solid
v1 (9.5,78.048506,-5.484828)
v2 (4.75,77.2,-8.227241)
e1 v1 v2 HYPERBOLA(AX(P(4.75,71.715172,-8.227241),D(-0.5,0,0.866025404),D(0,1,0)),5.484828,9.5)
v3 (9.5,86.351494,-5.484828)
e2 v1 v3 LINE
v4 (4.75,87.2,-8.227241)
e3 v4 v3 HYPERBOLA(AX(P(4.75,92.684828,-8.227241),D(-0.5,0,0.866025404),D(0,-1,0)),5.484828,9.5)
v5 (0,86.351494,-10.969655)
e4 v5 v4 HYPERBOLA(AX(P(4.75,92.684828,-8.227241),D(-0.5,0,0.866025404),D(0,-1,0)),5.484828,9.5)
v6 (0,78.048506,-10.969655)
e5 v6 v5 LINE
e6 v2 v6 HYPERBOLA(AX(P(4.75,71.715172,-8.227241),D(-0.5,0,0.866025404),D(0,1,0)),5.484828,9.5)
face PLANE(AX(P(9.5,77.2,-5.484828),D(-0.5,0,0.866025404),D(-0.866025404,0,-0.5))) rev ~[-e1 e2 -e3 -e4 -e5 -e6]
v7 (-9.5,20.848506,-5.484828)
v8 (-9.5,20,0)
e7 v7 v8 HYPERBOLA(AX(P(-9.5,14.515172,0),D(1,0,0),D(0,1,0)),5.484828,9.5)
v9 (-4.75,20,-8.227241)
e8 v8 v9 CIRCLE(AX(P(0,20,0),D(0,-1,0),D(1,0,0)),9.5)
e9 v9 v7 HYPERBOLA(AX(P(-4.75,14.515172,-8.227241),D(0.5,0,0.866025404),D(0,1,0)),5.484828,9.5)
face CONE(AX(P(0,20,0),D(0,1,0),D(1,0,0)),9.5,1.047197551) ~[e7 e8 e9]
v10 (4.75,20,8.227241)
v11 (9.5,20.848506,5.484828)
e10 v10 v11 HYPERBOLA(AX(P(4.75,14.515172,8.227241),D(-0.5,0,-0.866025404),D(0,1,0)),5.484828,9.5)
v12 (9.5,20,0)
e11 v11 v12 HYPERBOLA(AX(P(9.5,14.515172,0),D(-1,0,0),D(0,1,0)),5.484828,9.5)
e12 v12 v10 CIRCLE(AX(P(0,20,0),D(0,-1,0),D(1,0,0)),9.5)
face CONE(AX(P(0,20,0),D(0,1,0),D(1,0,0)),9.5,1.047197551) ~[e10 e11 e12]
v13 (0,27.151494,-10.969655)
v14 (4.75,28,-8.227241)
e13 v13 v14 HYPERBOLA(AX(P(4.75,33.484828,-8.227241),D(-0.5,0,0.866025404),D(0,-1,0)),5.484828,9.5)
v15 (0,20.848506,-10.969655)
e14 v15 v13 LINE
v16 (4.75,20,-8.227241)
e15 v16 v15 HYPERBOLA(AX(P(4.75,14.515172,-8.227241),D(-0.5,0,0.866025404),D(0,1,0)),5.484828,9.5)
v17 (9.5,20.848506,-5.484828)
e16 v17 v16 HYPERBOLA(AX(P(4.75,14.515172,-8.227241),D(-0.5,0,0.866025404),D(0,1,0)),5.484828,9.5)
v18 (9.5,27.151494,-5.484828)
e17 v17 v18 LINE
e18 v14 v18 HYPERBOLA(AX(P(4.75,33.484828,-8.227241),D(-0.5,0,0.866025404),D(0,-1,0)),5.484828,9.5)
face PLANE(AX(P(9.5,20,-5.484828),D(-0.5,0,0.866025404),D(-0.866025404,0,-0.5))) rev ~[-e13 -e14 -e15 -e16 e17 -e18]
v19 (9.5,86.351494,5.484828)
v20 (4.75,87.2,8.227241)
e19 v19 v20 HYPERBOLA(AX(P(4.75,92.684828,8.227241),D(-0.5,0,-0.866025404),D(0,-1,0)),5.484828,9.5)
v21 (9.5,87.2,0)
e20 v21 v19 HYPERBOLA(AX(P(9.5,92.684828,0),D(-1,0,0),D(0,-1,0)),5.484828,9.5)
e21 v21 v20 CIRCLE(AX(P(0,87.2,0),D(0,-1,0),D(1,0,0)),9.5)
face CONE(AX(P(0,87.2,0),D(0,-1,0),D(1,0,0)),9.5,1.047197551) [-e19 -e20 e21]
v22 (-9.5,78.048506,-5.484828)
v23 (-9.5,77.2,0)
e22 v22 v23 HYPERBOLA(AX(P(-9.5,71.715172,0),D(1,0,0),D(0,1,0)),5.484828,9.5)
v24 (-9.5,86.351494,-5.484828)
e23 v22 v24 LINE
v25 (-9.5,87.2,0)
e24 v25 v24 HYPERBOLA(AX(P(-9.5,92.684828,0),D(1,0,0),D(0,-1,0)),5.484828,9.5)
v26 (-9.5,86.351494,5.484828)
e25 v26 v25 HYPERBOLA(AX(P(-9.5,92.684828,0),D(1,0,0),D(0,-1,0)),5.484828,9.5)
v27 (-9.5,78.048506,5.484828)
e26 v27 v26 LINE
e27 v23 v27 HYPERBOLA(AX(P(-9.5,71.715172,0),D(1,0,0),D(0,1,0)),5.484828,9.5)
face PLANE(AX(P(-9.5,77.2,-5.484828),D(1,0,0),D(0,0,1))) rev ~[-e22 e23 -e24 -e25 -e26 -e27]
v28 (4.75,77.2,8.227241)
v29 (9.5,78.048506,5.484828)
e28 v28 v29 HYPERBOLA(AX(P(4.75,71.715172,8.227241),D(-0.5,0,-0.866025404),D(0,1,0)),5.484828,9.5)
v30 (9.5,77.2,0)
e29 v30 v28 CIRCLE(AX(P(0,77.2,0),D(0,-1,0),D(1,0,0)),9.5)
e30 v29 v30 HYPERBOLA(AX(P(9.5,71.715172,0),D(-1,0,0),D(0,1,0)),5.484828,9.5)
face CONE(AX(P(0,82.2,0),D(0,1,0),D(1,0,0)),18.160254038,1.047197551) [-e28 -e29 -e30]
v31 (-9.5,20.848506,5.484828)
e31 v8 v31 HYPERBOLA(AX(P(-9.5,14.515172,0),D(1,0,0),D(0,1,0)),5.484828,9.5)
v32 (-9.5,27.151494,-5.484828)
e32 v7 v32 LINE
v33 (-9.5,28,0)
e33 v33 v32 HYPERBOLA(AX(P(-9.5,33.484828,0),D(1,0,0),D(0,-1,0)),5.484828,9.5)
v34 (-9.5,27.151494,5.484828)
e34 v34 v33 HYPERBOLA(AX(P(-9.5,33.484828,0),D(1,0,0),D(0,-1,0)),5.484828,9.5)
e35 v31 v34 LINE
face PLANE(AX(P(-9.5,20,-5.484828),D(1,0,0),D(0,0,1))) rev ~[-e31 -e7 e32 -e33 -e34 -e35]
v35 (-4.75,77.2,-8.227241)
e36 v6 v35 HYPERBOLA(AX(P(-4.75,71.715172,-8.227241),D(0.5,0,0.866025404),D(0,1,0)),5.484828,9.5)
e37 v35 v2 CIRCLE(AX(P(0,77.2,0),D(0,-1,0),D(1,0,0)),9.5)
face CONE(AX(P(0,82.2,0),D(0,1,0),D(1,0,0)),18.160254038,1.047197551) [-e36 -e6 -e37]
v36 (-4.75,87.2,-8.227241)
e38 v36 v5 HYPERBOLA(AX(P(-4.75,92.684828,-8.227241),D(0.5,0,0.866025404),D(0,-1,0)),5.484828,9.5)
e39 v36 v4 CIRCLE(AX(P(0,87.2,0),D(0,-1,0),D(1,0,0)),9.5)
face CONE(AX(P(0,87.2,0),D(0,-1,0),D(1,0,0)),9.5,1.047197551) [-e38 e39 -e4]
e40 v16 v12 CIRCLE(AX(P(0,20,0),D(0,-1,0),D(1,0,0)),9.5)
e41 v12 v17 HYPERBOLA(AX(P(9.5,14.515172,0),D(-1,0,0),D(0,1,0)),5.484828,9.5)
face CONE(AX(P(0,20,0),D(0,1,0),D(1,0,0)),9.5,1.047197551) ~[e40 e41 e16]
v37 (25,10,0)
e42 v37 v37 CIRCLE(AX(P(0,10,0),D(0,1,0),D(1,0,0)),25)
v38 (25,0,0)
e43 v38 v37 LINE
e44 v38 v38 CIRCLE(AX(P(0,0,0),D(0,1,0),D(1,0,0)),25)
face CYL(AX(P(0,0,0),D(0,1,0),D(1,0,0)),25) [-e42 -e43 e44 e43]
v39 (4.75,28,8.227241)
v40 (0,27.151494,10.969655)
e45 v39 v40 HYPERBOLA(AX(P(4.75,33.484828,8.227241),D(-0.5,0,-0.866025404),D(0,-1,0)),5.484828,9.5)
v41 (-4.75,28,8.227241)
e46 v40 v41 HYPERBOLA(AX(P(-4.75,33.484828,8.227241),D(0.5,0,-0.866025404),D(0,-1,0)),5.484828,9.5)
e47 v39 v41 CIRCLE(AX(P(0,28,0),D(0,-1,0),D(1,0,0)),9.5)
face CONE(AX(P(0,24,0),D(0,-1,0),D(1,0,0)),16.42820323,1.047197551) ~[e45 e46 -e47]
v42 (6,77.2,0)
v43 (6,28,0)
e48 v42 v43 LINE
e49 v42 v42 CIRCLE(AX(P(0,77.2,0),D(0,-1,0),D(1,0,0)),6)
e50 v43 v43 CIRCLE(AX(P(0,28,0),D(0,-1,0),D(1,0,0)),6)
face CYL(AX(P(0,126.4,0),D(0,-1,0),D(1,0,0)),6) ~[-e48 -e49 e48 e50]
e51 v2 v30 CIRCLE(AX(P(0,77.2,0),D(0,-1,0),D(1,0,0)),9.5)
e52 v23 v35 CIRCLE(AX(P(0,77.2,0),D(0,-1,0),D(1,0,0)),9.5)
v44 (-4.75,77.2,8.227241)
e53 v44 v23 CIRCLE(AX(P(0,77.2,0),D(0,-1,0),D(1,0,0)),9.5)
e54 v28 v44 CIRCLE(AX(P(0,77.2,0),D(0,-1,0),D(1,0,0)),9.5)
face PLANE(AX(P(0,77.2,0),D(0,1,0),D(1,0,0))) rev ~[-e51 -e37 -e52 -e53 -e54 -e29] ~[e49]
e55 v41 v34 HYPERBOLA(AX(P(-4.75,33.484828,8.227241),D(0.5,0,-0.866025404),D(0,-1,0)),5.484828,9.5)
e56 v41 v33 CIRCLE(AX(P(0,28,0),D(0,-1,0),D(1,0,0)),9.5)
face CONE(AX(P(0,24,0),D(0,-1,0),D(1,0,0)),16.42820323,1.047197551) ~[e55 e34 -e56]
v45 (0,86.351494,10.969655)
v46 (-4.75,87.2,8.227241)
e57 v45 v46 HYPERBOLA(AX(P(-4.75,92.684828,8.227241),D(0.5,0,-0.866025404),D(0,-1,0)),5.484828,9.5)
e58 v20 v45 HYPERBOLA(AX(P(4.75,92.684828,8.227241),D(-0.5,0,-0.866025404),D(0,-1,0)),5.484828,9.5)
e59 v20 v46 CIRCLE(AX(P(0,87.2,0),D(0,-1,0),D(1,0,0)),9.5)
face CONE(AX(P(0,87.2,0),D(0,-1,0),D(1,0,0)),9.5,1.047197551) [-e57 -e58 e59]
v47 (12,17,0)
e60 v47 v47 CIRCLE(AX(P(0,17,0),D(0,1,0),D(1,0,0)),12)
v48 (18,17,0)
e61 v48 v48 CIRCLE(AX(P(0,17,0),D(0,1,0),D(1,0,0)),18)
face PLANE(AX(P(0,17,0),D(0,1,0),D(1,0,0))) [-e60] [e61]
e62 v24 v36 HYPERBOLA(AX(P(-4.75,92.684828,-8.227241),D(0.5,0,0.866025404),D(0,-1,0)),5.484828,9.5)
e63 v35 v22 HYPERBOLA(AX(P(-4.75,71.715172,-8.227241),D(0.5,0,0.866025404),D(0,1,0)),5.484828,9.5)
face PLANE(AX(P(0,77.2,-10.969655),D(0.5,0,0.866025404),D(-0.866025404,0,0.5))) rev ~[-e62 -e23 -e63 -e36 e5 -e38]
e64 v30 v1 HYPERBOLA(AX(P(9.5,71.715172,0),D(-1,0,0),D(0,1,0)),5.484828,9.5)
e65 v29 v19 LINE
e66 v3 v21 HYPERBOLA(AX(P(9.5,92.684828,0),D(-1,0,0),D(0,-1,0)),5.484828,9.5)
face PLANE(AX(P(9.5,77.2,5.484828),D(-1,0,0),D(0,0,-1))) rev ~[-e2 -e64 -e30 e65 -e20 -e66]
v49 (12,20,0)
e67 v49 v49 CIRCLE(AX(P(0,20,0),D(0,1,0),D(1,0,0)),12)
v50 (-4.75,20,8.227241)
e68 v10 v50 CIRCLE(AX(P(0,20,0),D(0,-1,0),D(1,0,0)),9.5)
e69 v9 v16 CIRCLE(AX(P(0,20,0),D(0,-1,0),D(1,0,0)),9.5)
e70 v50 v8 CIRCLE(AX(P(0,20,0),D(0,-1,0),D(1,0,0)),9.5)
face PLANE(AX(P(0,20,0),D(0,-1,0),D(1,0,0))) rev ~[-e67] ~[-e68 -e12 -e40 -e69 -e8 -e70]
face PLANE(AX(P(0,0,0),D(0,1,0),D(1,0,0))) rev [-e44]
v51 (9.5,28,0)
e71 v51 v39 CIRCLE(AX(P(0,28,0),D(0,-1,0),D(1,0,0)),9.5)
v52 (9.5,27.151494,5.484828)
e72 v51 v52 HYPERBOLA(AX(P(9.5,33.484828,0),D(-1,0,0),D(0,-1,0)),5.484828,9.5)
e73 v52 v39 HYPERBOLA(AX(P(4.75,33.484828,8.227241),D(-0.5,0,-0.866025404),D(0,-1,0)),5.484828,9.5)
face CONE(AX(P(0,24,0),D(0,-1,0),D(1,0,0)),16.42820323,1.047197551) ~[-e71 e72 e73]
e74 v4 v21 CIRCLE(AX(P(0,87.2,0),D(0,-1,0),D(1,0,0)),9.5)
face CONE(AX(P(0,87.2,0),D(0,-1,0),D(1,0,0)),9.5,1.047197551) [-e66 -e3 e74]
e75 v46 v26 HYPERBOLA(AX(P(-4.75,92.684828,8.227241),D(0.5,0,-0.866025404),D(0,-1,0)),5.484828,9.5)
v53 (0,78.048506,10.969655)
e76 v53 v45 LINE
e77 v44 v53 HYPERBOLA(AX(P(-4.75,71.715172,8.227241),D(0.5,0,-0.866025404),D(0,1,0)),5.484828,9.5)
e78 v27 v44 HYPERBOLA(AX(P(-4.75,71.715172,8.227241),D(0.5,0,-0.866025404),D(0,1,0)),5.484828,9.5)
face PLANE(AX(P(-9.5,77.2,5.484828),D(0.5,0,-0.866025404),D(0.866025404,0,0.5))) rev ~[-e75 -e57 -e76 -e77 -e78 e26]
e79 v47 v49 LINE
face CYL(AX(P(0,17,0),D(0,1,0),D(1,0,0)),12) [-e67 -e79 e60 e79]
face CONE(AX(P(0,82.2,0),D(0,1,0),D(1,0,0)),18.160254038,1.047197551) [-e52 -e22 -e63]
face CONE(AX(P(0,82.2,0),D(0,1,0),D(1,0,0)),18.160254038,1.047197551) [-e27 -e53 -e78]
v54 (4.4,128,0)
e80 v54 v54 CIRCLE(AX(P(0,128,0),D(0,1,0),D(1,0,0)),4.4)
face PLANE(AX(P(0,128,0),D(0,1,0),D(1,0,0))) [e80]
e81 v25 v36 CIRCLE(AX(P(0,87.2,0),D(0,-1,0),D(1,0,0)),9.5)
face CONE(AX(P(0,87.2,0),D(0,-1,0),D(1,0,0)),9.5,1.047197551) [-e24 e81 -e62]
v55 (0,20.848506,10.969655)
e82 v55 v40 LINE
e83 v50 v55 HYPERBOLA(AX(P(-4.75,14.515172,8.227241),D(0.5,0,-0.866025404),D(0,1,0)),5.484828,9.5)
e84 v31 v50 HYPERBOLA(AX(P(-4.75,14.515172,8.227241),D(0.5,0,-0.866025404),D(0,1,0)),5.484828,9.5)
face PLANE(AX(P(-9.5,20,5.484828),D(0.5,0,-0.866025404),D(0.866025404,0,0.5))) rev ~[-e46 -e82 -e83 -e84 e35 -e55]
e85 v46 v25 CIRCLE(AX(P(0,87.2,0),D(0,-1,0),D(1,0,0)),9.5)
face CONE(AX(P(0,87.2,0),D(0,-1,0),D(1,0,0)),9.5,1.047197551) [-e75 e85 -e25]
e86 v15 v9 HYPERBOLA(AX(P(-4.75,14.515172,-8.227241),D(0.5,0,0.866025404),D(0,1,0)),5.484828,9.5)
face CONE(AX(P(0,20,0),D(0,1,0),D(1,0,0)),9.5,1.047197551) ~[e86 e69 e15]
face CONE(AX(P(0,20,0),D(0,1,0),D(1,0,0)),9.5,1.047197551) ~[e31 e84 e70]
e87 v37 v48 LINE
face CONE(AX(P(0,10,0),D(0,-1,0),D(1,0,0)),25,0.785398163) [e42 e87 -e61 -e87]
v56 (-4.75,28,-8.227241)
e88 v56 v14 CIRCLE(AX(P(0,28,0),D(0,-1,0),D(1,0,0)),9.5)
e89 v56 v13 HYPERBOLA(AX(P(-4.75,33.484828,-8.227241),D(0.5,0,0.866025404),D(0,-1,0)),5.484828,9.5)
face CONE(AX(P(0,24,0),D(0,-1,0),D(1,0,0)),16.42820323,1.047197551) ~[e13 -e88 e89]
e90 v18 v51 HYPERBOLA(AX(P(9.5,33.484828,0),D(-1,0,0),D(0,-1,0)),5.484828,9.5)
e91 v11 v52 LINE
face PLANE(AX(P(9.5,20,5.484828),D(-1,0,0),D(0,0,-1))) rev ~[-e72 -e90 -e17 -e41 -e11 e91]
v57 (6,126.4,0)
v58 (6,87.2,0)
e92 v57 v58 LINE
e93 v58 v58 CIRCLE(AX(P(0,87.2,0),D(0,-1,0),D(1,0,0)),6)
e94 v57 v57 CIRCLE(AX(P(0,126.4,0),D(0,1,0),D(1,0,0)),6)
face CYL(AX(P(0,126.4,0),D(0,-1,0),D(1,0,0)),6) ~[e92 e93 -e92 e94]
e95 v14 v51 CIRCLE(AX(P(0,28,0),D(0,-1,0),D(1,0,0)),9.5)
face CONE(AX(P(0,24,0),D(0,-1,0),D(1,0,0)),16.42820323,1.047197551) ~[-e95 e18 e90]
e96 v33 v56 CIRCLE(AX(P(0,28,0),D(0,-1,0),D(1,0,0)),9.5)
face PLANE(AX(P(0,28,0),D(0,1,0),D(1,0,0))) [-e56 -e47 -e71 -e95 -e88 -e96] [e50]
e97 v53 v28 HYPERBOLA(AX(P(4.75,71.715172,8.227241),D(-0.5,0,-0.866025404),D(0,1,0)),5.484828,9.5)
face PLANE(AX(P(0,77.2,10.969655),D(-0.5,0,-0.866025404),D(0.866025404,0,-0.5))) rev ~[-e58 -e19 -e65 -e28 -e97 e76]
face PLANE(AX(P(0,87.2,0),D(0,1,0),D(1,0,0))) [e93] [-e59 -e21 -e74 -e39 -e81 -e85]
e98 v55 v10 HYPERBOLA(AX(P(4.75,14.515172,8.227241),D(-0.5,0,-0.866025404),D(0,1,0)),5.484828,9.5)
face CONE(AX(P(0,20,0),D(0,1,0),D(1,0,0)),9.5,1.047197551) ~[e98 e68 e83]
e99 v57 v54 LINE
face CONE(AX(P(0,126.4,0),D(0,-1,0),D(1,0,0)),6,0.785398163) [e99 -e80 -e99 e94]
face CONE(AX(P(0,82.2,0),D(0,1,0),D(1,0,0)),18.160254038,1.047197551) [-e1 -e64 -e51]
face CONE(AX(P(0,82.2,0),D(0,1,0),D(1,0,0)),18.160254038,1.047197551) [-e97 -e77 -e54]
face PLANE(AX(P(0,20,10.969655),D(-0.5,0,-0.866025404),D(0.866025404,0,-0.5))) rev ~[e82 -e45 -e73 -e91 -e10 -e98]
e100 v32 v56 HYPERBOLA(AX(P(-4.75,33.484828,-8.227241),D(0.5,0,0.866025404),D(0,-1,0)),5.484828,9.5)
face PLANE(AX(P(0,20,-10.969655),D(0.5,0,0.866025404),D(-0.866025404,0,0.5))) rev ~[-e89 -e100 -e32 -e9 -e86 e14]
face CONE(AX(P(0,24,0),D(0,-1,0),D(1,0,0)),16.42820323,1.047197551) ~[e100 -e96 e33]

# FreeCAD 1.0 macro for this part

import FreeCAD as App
import Part
import Sketcher

V = App.Vector
Q = App.Units.Quantity


def add_polygon(sketch, points):
    """Adds a closed chain of lines whose ends are joined by coincident constraints."""
    first, n = sketch.GeometryCount, len(points)
    for a, b in zip(points, points[1:] + points[:1]):
        sketch.addGeometry(Part.LineSegment(App.Vector(*a, 0), App.Vector(*b, 0)), False)
    for i in range(n):
        sketch.addConstraint(Sketcher.Constraint("Coincident", first + i, 2, first + (i + 1) % n, 1))

doc = App.newDocument("Part")
body = doc.addObject("PartDesign::Body", "Body")

sketch1 = body.newObject("Sketcher::SketchObject", "Sketch")
sketch1.AttachmentSupport = (doc.getObject("XY_Plane"), [""])
sketch1.MapMode = "FlatFace"
add_polygon(sketch1, [(-25, 0), (0, 0), (0, 128), (-4.4, 128), (-6, 126.4), (-6, 20), (-12, 20), (-12, 17), (-18, 17), (-25, 10)])
sketch1.addConstraint(Sketcher.Constraint("Horizontal", 0))
sketch1.addConstraint(Sketcher.Constraint("Vertical", 1))
sketch1.addConstraint(Sketcher.Constraint("Horizontal", 2))
sketch1.addConstraint(Sketcher.Constraint("Vertical", 4))
sketch1.addConstraint(Sketcher.Constraint("Horizontal", 5))
sketch1.addConstraint(Sketcher.Constraint("Vertical", 6))
sketch1.addConstraint(Sketcher.Constraint("Horizontal", 7))
sketch1.addConstraint(Sketcher.Constraint("Vertical", 9))
sketch1.addConstraint(Sketcher.Constraint("Coincident", 0, 2, -1, 1))
sketch1.addConstraint(Sketcher.Constraint("Parallel", 3, 8))
sketch1.addConstraint(Sketcher.Constraint("Equal", 5, 7))
sketch1.addConstraint(Sketcher.Constraint("DistanceX", 0, 1, 0, 2, 25.0))
sketch1.addConstraint(Sketcher.Constraint("DistanceX", 5, 2, 5, 1, 6.0))
sketch1.addConstraint(Sketcher.Constraint("DistanceY", 1, 1, 1, 2, 128.0))
sketch1.addConstraint(Sketcher.Constraint("DistanceY", 6, 2, 6, 1, 3.0))
sketch1.addConstraint(Sketcher.Constraint("DistanceY", 9, 2, 9, 1, 10.0))
sketch1.addConstraint(Sketcher.Constraint("Angle", 3, Q("-135 deg")))
sketch1.addConstraint(Sketcher.Constraint("DistanceX", 2, 2, 2, 1, 4.4))
sketch1.addConstraint(Sketcher.Constraint("DistanceX", 3, 2, -1, 1, 6.0))
revolution = body.newObject("PartDesign::Revolution", "Revolution")
revolution.Profile = sketch1
revolution.ReferenceAxis = (sketch1, ["V_Axis"])
revolution.Angle = 360

sketch2 = body.newObject("Sketcher::SketchObject", "Sketch001")
sketch2.AttachmentSupport = (doc.getObject("XZ_Plane"), [""])
sketch2.MapMode = "FlatFace"
sketch2.AttachmentOffset = App.Placement(V(0, 0, -20), App.Rotation())
add_polygon(sketch2, [(0, -10.969655), (-9.5, -5.484828), (-9.5, 5.484828), (0, 10.969655), (9.5, 5.484828), (9.5, -5.484828)])
sketch2.addConstraint(Sketcher.Constraint("Vertical", 1))
sketch2.addConstraint(Sketcher.Constraint("Vertical", 4))
sketch2.addConstraint(Sketcher.Constraint("Symmetric", 0, 2, 3, 2, -1, 1))
sketch2.addConstraint(Sketcher.Constraint("Symmetric", 2, 2, 5, 2, -1, 1))
sketch2.addConstraint(Sketcher.Constraint("PointOnObject", 2, 2, -2))
sketch2.addConstraint(Sketcher.Constraint("Parallel", 2, 5))
sketch2.addConstraint(Sketcher.Constraint("Horizontal", 1, 2, 3, 2))
sketch2.addConstraint(Sketcher.Constraint("Angle", 0, Q("150 deg")))
sketch2.addConstraint(Sketcher.Constraint("DistanceX", 1, 2, 3, 2, 19.0))
sketch2.addConstraint(Sketcher.Constraint("DistanceY", 1, 1, 1, 2, 10.969655))
pad1 = body.newObject("PartDesign::Pad", "Pad")
pad1.Profile = sketch2
pad1.Length = 8
pad1.Reversed = True

sketch3 = body.newObject("Sketcher::SketchObject", "Sketch002")
sketch3.AttachmentSupport = (doc.getObject("XZ_Plane"), [""])
sketch3.MapMode = "FlatFace"
sketch3.AttachmentOffset = App.Placement(V(0, 0, -77.2), App.Rotation())
add_polygon(sketch3, [(9.5, -5.484828), (0, -10.969655), (-9.5, -5.484828), (-9.5, 5.484828), (0, 10.969655), (9.5, 5.484828)])
sketch3.addConstraint(Sketcher.Constraint("Vertical", 2))
sketch3.addConstraint(Sketcher.Constraint("Vertical", 5))
sketch3.addConstraint(Sketcher.Constraint("Symmetric", 0, 2, 3, 2, -1, 1))
sketch3.addConstraint(Sketcher.Constraint("Symmetric", 1, 2, 4, 2, -1, 1))
sketch3.addConstraint(Sketcher.Constraint("PointOnObject", 0, 2, -2))
sketch3.addConstraint(Sketcher.Constraint("Parallel", 0, 3))
sketch3.addConstraint(Sketcher.Constraint("Horizontal", 2, 2, 4, 2))
sketch3.addConstraint(Sketcher.Constraint("Angle", 0, Q("-150 deg")))
sketch3.addConstraint(Sketcher.Constraint("DistanceX", 2, 2, 4, 2, 19.0))
sketch3.addConstraint(Sketcher.Constraint("DistanceY", 2, 1, 2, 2, 10.969655))
pad2 = body.newObject("PartDesign::Pad", "Pad001")
pad2.Profile = sketch3
pad2.Length = 10
pad2.Reversed = True

sketch4 = body.newObject("Sketcher::SketchObject", "Sketch003")
sketch4.AttachmentSupport = (doc.getObject("XY_Plane"), [""])
sketch4.MapMode = "FlatFace"
add_polygon(sketch4, [(-9.5, 87.2), (-18.160254, 87.2), (-18.160254, 82.2)])
add_polygon(sketch4, [(-18.160254, 82.2), (-18.160254, 77.2), (-9.5, 77.2)])
add_polygon(sketch4, [(-16.428203, 28), (-16.428203, 24), (-9.5, 28)])
add_polygon(sketch4, [(-16.428203, 24), (-16.428203, 20), (-9.5, 20)])
sketch4.addConstraint(Sketcher.Constraint("Horizontal", 0))
sketch4.addConstraint(Sketcher.Constraint("Vertical", 1))
sketch4.addConstraint(Sketcher.Constraint("Vertical", 3))
sketch4.addConstraint(Sketcher.Constraint("Horizontal", 4))
sketch4.addConstraint(Sketcher.Constraint("Vertical", 6))
sketch4.addConstraint(Sketcher.Constraint("Horizontal", 8))
sketch4.addConstraint(Sketcher.Constraint("Vertical", 9))
sketch4.addConstraint(Sketcher.Constraint("Horizontal", 10))
sketch4.addConstraint(Sketcher.Constraint("Coincident", 5, 2, 1, 2))
sketch4.addConstraint(Sketcher.Constraint("Coincident", 11, 2, 6, 2))
sketch4.addConstraint(Sketcher.Constraint("Parallel", 2, 7))
sketch4.addConstraint(Sketcher.Constraint("Parallel", 5, 11))
sketch4.addConstraint(Sketcher.Constraint("Vertical", 2, 2, 4, 2))
sketch4.addConstraint(Sketcher.Constraint("Vertical", 4, 2, 7, 2))
sketch4.addConstraint(Sketcher.Constraint("Vertical", 7, 2, 10, 2))
sketch4.addConstraint(Sketcher.Constraint("Equal", 1, 3))
sketch4.addConstraint(Sketcher.Constraint("DistanceY", 1, 2, 1, 1, 5.0))
sketch4.addConstraint(Sketcher.Constraint("DistanceY", 6, 2, 6, 1, 4.0))
sketch4.addConstraint(Sketcher.Constraint("Angle", 2, Q("30 deg")))
sketch4.addConstraint(Sketcher.Constraint("DistanceY", -1, 1, 6, 2, 24.0))
sketch4.addConstraint(Sketcher.Constraint("DistanceY", -1, 1, 0, 2, 87.2))
sketch4.addConstraint(Sketcher.Constraint("DistanceX", 2, 2, -1, 1, 9.5))
groove = body.newObject("PartDesign::Groove", "Groove")
groove.Profile = sketch4
groove.ReferenceAxis = (sketch4, ["V_Axis"])
groove.Angle = 360

doc.recompute()
